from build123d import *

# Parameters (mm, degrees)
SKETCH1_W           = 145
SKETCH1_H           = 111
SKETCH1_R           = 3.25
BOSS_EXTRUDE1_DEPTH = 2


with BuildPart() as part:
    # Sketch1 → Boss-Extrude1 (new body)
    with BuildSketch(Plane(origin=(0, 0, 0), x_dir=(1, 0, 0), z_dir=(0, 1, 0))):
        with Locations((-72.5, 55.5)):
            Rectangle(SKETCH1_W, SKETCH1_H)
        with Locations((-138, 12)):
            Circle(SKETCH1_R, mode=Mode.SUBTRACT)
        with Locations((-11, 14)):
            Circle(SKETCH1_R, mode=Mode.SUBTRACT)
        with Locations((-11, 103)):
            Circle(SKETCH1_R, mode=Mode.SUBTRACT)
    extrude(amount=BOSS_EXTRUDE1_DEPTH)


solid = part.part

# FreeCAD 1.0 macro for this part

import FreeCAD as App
import Part
import Sketcher


def add_polygon(sketch, points):
    """Adds a closed chain of lines whose ends are joined by coincident constraints."""
    first, n = sketch.GeometryCount, len(points)
    for a, b in zip(points, points[1:] + points[:1]):
        sketch.addGeometry(Part.LineSegment(App.Vector(*a, 0), App.Vector(*b, 0)), False)
    for i in range(n):
        sketch.addConstraint(Sketcher.Constraint("Coincident", first + i, 2, first + (i + 1) % n, 1))

doc = App.newDocument("Part")
body = doc.addObject("PartDesign::Body", "Body")

# Sketch on XZ plane
sketch1 = doc.addObject("Sketcher::SketchObject", "Sketch")
body.addObject(sketch1)
sketch1.AttachmentSupport = (doc.XZ_Plane, [""])
sketch1.MapMode = "FlatFace"
add_polygon(sketch1, [(-145, -111), (-145, 0), (0, 0), (0, -111)])  # lines 0-3
sketch1.addGeometry(Part.Circle(App.Vector(-138, -12, 0), App.Vector(0, 0, 1), 3.2), False)  # 4
sketch1.addGeometry(Part.Circle(App.Vector(-11, -14, 0), App.Vector(0, 0, 1), 3.2), False)  # 5
sketch1.addGeometry(Part.Circle(App.Vector(-11, -103, 0), App.Vector(0, 0, 1), 3.2), False)  # 6
sketch1.addConstraint(Sketcher.Constraint("Vertical", 0))
sketch1.addConstraint(Sketcher.Constraint("Horizontal", 1))
sketch1.addConstraint(Sketcher.Constraint("Vertical", 2))
sketch1.addConstraint(Sketcher.Constraint("Horizontal", 3))
sketch1.addConstraint(Sketcher.Constraint("Coincident", 1, 2, -1, 1))
sketch1.addConstraint(Sketcher.Constraint("Equal", 4, 5))
sketch1.addConstraint(Sketcher.Constraint("Equal", 5, 6))
sketch1.addConstraint(Sketcher.Constraint("Vertical", 5, 3, 6, 3))
sketch1.addConstraint(Sketcher.Constraint("Diameter", 4, 6.5))
sketch1.addConstraint(Sketcher.Constraint("DistanceX", 1, 1, 1, 2, 145.0))
sketch1.addConstraint(Sketcher.Constraint("DistanceY", 0, 1, 0, 2, 111.0))
sketch1.addConstraint(Sketcher.Constraint("DistanceX", 4, 3, -1, 1, 138.0))
sketch1.addConstraint(Sketcher.Constraint("DistanceY", 4, 3, -1, 1, 12.0))
sketch1.addConstraint(Sketcher.Constraint("DistanceX", 5, 3, -1, 1, 11.0))
sketch1.addConstraint(Sketcher.Constraint("DistanceY", 5, 3, -1, 1, 14.0))
sketch1.addConstraint(Sketcher.Constraint("DistanceY", 6, 3, -1, 1, 103.0))
pad1 = doc.addObject("PartDesign::Pad", "Pad")
body.addObject(pad1)
pad1.Profile = sketch1
pad1.Length = 2
pad1.Reversed = True

doc.recompute()
